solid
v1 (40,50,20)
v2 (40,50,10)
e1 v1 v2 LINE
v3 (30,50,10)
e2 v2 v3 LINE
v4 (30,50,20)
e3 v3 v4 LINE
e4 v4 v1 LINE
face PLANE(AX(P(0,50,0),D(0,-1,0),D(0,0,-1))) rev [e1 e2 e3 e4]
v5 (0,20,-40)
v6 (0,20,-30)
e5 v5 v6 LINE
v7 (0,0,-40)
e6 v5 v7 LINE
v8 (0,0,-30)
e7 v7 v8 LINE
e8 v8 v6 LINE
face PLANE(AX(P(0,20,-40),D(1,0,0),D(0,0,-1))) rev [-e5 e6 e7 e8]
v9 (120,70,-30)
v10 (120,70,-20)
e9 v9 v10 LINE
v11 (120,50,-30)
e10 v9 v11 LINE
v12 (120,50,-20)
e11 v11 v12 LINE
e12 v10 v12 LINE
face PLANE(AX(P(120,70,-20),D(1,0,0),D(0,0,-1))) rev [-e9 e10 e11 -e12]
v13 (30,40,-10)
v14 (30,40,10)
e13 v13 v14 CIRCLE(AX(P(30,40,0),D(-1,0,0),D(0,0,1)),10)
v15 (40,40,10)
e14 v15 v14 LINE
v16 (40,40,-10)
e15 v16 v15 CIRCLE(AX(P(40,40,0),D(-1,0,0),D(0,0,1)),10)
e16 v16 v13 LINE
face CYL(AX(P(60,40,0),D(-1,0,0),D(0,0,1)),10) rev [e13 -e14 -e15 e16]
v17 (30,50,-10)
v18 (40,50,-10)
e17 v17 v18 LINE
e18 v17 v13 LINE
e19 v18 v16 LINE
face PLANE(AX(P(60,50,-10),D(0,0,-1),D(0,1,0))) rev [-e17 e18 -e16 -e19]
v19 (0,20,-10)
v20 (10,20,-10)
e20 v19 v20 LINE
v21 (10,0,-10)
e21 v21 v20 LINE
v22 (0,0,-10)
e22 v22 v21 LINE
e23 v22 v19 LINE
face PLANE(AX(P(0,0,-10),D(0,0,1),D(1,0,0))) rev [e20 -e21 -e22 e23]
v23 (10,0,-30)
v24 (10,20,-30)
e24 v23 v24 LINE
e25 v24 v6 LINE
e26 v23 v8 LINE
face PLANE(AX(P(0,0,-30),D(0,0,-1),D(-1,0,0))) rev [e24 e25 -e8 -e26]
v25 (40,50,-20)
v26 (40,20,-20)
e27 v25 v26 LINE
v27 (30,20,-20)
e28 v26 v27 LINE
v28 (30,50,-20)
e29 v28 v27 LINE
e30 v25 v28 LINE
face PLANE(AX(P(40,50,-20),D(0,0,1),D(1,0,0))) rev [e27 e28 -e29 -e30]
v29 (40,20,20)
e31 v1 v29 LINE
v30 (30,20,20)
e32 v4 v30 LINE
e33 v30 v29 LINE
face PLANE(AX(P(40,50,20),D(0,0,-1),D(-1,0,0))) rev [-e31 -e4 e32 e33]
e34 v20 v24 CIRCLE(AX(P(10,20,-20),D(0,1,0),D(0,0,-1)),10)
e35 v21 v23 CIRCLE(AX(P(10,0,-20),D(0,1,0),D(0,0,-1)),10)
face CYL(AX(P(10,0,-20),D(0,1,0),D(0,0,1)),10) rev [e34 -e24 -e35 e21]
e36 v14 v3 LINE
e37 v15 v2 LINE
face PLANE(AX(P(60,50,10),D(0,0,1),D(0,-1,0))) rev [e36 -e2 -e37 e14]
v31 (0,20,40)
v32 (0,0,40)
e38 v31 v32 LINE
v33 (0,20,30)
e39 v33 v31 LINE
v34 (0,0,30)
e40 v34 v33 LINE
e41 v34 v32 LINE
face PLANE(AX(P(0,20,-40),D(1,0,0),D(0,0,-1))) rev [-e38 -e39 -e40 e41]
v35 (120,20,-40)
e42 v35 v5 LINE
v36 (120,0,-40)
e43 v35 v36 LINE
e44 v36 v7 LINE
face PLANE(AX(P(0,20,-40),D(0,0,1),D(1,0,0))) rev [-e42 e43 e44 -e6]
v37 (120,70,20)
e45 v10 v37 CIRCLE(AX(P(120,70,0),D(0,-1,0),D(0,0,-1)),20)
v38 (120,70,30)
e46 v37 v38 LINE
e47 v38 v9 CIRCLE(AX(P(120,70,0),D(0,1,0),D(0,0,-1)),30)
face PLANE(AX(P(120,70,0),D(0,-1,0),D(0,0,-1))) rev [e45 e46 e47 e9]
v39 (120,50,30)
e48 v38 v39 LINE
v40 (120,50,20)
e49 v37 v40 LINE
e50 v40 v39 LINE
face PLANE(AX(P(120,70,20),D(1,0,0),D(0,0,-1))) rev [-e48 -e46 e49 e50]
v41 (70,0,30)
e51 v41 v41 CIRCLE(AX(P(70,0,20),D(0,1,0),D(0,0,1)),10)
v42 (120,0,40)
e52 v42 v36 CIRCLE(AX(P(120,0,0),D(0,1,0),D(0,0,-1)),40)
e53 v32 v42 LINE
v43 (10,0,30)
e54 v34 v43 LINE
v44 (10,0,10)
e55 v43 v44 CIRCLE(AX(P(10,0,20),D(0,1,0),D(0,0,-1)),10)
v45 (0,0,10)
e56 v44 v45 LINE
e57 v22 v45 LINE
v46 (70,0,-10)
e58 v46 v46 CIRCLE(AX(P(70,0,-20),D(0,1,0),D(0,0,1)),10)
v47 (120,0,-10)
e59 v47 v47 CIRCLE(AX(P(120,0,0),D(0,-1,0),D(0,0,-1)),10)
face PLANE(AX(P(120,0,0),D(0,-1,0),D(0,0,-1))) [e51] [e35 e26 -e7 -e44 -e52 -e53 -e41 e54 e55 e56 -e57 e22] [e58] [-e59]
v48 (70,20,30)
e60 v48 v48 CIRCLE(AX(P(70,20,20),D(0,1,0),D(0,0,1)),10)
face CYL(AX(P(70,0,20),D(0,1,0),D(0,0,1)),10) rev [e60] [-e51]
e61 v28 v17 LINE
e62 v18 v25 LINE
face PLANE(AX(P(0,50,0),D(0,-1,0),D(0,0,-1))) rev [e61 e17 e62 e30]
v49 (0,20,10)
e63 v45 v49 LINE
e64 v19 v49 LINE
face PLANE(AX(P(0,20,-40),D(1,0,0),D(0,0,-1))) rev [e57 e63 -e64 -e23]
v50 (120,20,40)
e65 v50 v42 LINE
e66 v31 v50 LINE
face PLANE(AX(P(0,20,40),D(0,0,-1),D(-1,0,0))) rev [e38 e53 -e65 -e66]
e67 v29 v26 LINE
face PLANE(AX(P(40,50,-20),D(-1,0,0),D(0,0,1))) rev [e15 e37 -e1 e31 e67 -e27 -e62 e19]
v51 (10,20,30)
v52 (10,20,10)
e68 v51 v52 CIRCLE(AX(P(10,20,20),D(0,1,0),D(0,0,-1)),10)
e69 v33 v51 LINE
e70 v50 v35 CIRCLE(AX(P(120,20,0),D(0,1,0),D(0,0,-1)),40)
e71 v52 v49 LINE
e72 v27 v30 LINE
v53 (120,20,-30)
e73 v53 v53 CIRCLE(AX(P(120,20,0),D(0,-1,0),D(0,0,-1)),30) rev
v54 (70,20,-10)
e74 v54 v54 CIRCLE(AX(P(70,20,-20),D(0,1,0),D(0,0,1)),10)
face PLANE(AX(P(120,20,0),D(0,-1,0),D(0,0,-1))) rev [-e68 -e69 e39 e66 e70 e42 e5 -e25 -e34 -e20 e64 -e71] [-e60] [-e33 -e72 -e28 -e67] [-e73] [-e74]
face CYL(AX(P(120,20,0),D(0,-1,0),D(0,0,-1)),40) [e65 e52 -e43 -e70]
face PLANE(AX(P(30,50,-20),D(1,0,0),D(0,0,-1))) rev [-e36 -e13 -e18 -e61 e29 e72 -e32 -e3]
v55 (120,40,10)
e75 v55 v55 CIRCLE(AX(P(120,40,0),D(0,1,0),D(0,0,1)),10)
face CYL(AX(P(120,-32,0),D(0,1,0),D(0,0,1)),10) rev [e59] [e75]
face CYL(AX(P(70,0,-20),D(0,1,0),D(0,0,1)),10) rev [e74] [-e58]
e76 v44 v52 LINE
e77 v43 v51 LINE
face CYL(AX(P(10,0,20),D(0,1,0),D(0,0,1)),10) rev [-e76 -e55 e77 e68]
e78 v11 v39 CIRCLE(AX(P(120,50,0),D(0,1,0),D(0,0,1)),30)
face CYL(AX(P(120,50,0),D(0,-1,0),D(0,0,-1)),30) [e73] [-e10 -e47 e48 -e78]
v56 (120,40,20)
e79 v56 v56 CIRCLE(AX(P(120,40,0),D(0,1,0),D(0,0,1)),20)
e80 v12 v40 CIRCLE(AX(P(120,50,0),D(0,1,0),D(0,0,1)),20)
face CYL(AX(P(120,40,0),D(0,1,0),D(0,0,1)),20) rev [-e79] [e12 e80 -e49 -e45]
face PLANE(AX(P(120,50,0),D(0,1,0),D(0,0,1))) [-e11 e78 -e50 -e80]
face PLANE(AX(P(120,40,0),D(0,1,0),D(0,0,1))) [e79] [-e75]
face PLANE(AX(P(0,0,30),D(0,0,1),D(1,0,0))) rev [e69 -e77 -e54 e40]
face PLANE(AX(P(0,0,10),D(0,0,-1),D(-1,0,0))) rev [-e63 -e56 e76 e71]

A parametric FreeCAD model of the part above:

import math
import FreeCAD as App
import Part
import Sketcher

V = App.Vector

doc = App.newDocument("Part")
body = doc.addObject("PartDesign::Body", "Body")

# Sketch on XZ plane
sketch1 = doc.addObject("Sketcher::SketchObject", "Sketch")
body.addObject(sketch1)
sketch1.AttachmentSupport = (doc.XZ_Plane, [""])
sketch1.MapMode = "FlatFace"
sketch1.addGeometry([
    Part.LineSegment(V(0, -40, 0), V(0, 40, 0)),
    Part.LineSegment(V(0, 40, 0), V(120, 40, 0)),
    Part.ArcOfCircle(Part.Circle(V(120, 0, 0), V(0, 0, 1), 40), math.radians(-90), math.radians(90)),
    Part.LineSegment(V(120, -40, 0), V(0, -40, 0)),
], False)
sketch1.addConstraint([
    Sketcher.Constraint("Coincident", 0, 2, 1, 1),
    Sketcher.Constraint("Tangent", 1, 2, 2, 2),
    Sketcher.Constraint("Tangent", 2, 1, 3, 1),
    Sketcher.Constraint("Coincident", 3, 2, 0, 1),
    Sketcher.Constraint("Vertical", 0),
    Sketcher.Constraint("Horizontal", 1),
    Sketcher.Constraint("Horizontal", 3),
    Sketcher.Constraint("Symmetric", 0, 2, 3, 2, -1, 1),
    Sketcher.Constraint("Radius", 2, 40.0),
    Sketcher.Constraint("DistanceX", 1, 1, 1, 2, 120.0),
])
pad1 = doc.addObject("PartDesign::Pad", "Pad")
body.addObject(pad1)
pad1.Profile = sketch1
pad1.Length = 20
pad1.Reversed = True

# Sketch on XZ plane
sketch2 = doc.addObject("Sketcher::SketchObject", "Sketch001")
body.addObject(sketch2)
sketch2.AttachmentSupport = (doc.XZ_Plane, [""])
sketch2.MapMode = "FlatFace"
sketch2.AttachmentOffset = App.Placement(V(0, 0, -20), App.Rotation())
sketch2.addGeometry([
    Part.LineSegment(V(10, -30, 0), V(0, -30, 0)),  # 0
    Part.LineSegment(V(0, -30, 0), V(0, -10, 0)),  # 1
    Part.LineSegment(V(0, -10, 0), V(10, -10, 0)),  # 2
    Part.ArcOfCircle(Part.Circle(V(10, -20, 0), V(0, 0, 1), 10), math.radians(-90), math.radians(90)),  # 3
    Part.LineSegment(V(10, 10, 0), V(0, 10, 0)),  # 4
    Part.LineSegment(V(0, 10, 0), V(0, 30, 0)),  # 5
    Part.LineSegment(V(0, 30, 0), V(10, 30, 0)),  # 6
    Part.ArcOfCircle(Part.Circle(V(10, 20, 0), V(0, 0, 1), 10), math.radians(-90), math.radians(90)),  # 7
], False)
sketch2.addConstraint([
    Sketcher.Constraint("Coincident", 0, 2, 1, 1),
    Sketcher.Constraint("Coincident", 1, 2, 2, 1),
    Sketcher.Constraint("Tangent", 2, 2, 3, 2),
    Sketcher.Constraint("Tangent", 3, 1, 0, 1),
    Sketcher.Constraint("Coincident", 4, 2, 5, 1),
    Sketcher.Constraint("Coincident", 5, 2, 6, 1),
    Sketcher.Constraint("Tangent", 6, 2, 7, 2),
    Sketcher.Constraint("Tangent", 7, 1, 4, 1),
    Sketcher.Constraint("Horizontal", 0),
    Sketcher.Constraint("Vertical", 1),
    Sketcher.Constraint("Horizontal", 2),
    Sketcher.Constraint("Horizontal", 4),
    Sketcher.Constraint("Vertical", 5),
    Sketcher.Constraint("Horizontal", 6),
    Sketcher.Constraint("Equal", 3, 7),
    Sketcher.Constraint("Symmetric", 1, 2, 4, 2, -1, 1),
    Sketcher.Constraint("PointOnObject", 0, 2, -2),
    Sketcher.Constraint("Vertical", 3, 3, 7, 3),
    Sketcher.Constraint("Radius", 3, 10.0),
    Sketcher.Constraint("DistanceX", 0, 2, 0, 1, 10.0),
    Sketcher.Constraint("DistanceY", 3, 3, -1, 1, 20.0),
])
pocket1 = doc.addObject("PartDesign::Pocket", "Pocket")
body.addObject(pocket1)
pocket1.Profile = sketch2
pocket1.Length = 20
pocket1.Reversed = True

# Sketch on XZ plane
sketch3 = doc.addObject("Sketcher::SketchObject", "Sketch002")
body.addObject(sketch3)
sketch3.AttachmentSupport = (doc.XZ_Plane, [""])
sketch3.MapMode = "FlatFace"
sketch3.AttachmentOffset = App.Placement(V(0, 0, -20), App.Rotation())
sketch3.addGeometry([
    Part.Circle(V(70, -20, 0), V(0, 0, 1), 10),
    Part.Circle(V(70, 20, 0), V(0, 0, 1), 10),
], False)
sketch3.addConstraint([
    Sketcher.Constraint("Equal", 0, 1),
    Sketcher.Constraint("Symmetric", 0, 3, 1, 3, -1),
    Sketcher.Constraint("Diameter", 0, 20.0),
    Sketcher.Constraint("DistanceX", -1, 1, 0, 3, 70.0),
    Sketcher.Constraint("DistanceY", 0, 3, -1, 1, 20.0),
])
pocket2 = doc.addObject("PartDesign::Pocket", "Pocket001")
body.addObject(pocket2)
pocket2.Profile = sketch3
pocket2.Length = 20
pocket2.Reversed = True

# Sketch on XZ plane
sketch4 = doc.addObject("Sketcher::SketchObject", "Sketch003")
body.addObject(sketch4)
sketch4.AttachmentSupport = (doc.XZ_Plane, [""])
sketch4.MapMode = "FlatFace"
sketch4.AttachmentOffset = App.Placement(V(0, 0, -20), App.Rotation())
sketch4.addGeometry(Part.Circle(V(120, 0, 0), V(0, 0, 1), 20), False)
sketch4.addConstraint([
    Sketcher.Constraint("PointOnObject", 0, 3, -1),
    Sketcher.Constraint("Diameter", 0, 40.0),
    Sketcher.Constraint("DistanceX", -1, 1, 0, 3, 120.0),
])
pad2 = doc.addObject("PartDesign::Pad", "Pad001")
body.addObject(pad2)
pad2.Profile = sketch4
pad2.Length = 20
pad2.Reversed = True

# Sketch on XZ plane
sketch5 = doc.addObject("Sketcher::SketchObject", "Sketch004")
body.addObject(sketch5)
sketch5.AttachmentSupport = (doc.XZ_Plane, [""])
sketch5.MapMode = "FlatFace"
sketch5.AttachmentOffset = App.Placement(V(0, 0, -20), App.Rotation())
sketch5.addGeometry(Part.Circle(V(120, 0, 0), V(0, 0, 1), 30), False)
sketch5.addConstraint([
    Sketcher.Constraint("PointOnObject", 0, 3, -1),
    Sketcher.Constraint("Diameter", 0, 60.0),
    Sketcher.Constraint("DistanceX", -1, 1, 0, 3, 120.0),
])
pad3 = doc.addObject("PartDesign::Pad", "Pad002")
body.addObject(pad3)
pad3.Profile = sketch5
pad3.Length = 30
pad3.Reversed = True

# Sketch on XZ plane
sketch6 = doc.addObject("Sketcher::SketchObject", "Sketch005")
body.addObject(sketch6)
sketch6.AttachmentSupport = (doc.XZ_Plane, [""])
sketch6.MapMode = "FlatFace"
sketch6.AttachmentOffset = App.Placement(V(0, 0, -50), App.Rotation())
sketch6.addGeometry(Part.Circle(V(120, 0, 0), V(0, 0, 1), 20), False)
sketch6.addConstraint([
    Sketcher.Constraint("PointOnObject", 0, 3, -1),
    Sketcher.Constraint("Diameter", 0, 40.0),
    Sketcher.Constraint("DistanceX", -1, 1, 0, 3, 120.0),
])
pocket3 = doc.addObject("PartDesign::Pocket", "Pocket002")
body.addObject(pocket3)
pocket3.Profile = sketch6
pocket3.Length = 10
pocket3.Reversed = True

# Sketch on XZ plane
sketch7 = doc.addObject("Sketcher::SketchObject", "Sketch006")
body.addObject(sketch7)
sketch7.AttachmentSupport = (doc.XZ_Plane, [""])
sketch7.MapMode = "FlatFace"
sketch7.AttachmentOffset = App.Placement(V(0, 0, -40), App.Rotation())
sketch7.addGeometry(Part.Circle(V(120, 0, 0), V(0, 0, 1), 10), False)
sketch7.addConstraint([
    Sketcher.Constraint("PointOnObject", 0, 3, -1),
    Sketcher.Constraint("Diameter", 0, 20.0),
    Sketcher.Constraint("DistanceX", -1, 1, 0, 3, 120.0),
])
pocket4 = doc.addObject("PartDesign::Pocket", "Pocket003")
body.addObject(pocket4)
pocket4.Profile = sketch7
pocket4.Length = 72
pocket4.Reversed = True

# Sketch on XZ plane
sketch8 = doc.addObject("Sketcher::SketchObject", "Sketch007")
body.addObject(sketch8)
sketch8.AttachmentSupport = (doc.XZ_Plane, [""])
sketch8.MapMode = "FlatFace"
sketch8.AttachmentOffset = App.Placement(V(0, 0, -50), App.Rotation())
sketch8.addGeometry([
    Part.LineSegment(V(120, -30, 0), V(120, -20, 0)),
    Part.ArcOfCircle(Part.Circle(V(120, 0, 0), V(0, 0, 1), 20), math.radians(-90), math.radians(90)),
    Part.LineSegment(V(120, 20, 0), V(120, 30, 0)),
    Part.ArcOfCircle(Part.Circle(V(120, 0, 0), V(0, 0, 1), 30), math.radians(-90), math.radians(90)),
], False)
sketch8.addConstraint([
    Sketcher.Constraint("Coincident", 0, 2, 1, 1),
    Sketcher.Constraint("Coincident", 1, 2, 2, 1),
    Sketcher.Constraint("Coincident", 2, 2, 3, 2),
    Sketcher.Constraint("Coincident", 3, 1, 0, 1),
    Sketcher.Constraint("Vertical", 0),
    Sketcher.Constraint("Vertical", 2),
    Sketcher.Constraint("Coincident", 3, 3, 1, 3),
    Sketcher.Constraint("Symmetric", 0, 2, 1, 2, -1),
    Sketcher.Constraint("Vertical", 3, 3, 0, 2),
    Sketcher.Constraint("Radius", 1, 20.0),
    Sketcher.Constraint("Radius", 3, 30.0),
    Sketcher.Constraint("DistanceX", -1, 1, 1, 3, 120.0),
])
pad4 = doc.addObject("PartDesign::Pad", "Pad003")
body.addObject(pad4)
pad4.Profile = sketch8
pad4.Length = 20
pad4.Reversed = True

# Sketch on XZ plane
sketch9 = doc.addObject("Sketcher::SketchObject", "Sketch008")
body.addObject(sketch9)
sketch9.AttachmentSupport = (doc.XZ_Plane, [""])
sketch9.MapMode = "FlatFace"
sketch9.AttachmentOffset = App.Placement(V(0, 0, -20), App.Rotation())
sketch9.addGeometry([
    Part.LineSegment(V(30, -20, 0), V(30, 20, 0)),
    Part.LineSegment(V(30, 20, 0), V(40, 20, 0)),
    Part.LineSegment(V(40, 20, 0), V(40, -20, 0)),
    Part.LineSegment(V(40, -20, 0), V(30, -20, 0)),
], False)
sketch9.addConstraint([
    Sketcher.Constraint("Coincident", 0, 2, 1, 1),
    Sketcher.Constraint("Coincident", 1, 2, 2, 1),
    Sketcher.Constraint("Coincident", 2, 2, 3, 1),
    Sketcher.Constraint("Coincident", 3, 2, 0, 1),
    Sketcher.Constraint("Vertical", 0),
    Sketcher.Constraint("Horizontal", 1),
    Sketcher.Constraint("Vertical", 2),
    Sketcher.Constraint("Horizontal", 3),
    Sketcher.Constraint("DistanceX", 1, 1, 1, 2, 10.0),
    Sketcher.Constraint("DistanceY", 0, 1, 0, 2, 40.0),
    Sketcher.Constraint("DistanceX", -1, 1, 0, 2, 30.0),
    Sketcher.Constraint("DistanceY", -1, 1, 0, 2, 20.0),
])
pad5 = doc.addObject("PartDesign::Pad", "Pad004")
body.addObject(pad5)
pad5.Profile = sketch9
pad5.Length = 30
pad5.Reversed = True

# Sketch on YZ plane
sketch10 = doc.addObject("Sketcher::SketchObject", "Sketch009")
body.addObject(sketch10)
sketch10.AttachmentSupport = (doc.YZ_Plane, [""])
sketch10.MapMode = "FlatFace"
sketch10.AttachmentOffset = App.Placement(V(0, 0, 30), App.Rotation())
sketch10.addGeometry([
    Part.LineSegment(V(50, -10, 0), V(40, -10, 0)),
    Part.ArcOfCircle(Part.Circle(V(40, 0, 0), V(0, 0, 1), 10), math.radians(90), math.radians(270)),
    Part.LineSegment(V(40, 10, 0), V(50, 10, 0)),
    Part.LineSegment(V(50, 10, 0), V(50, -10, 0)),
], False)
sketch10.addConstraint([
    Sketcher.Constraint("Tangent", 0, 2, 1, 2),
    Sketcher.Constraint("Tangent", 1, 1, 2, 1),
    Sketcher.Constraint("Coincident", 2, 2, 3, 1),
    Sketcher.Constraint("Coincident", 3, 2, 0, 1),
    Sketcher.Constraint("Horizontal", 0),
    Sketcher.Constraint("Horizontal", 2),
    Sketcher.Constraint("Vertical", 3),
    Sketcher.Constraint("PointOnObject", 1, 3, -1),
    Sketcher.Constraint("Radius", 1, 10.0),
    Sketcher.Constraint("DistanceX", 0, 2, 0, 1, 10.0),
    Sketcher.Constraint("DistanceX", -1, 1, 1, 3, 40.0),
])
pocket5 = doc.addObject("PartDesign::Pocket", "Pocket004")
body.addObject(pocket5)
pocket5.Profile = sketch10
pocket5.Length = 30
pocket5.Reversed = True

doc.recompute()
